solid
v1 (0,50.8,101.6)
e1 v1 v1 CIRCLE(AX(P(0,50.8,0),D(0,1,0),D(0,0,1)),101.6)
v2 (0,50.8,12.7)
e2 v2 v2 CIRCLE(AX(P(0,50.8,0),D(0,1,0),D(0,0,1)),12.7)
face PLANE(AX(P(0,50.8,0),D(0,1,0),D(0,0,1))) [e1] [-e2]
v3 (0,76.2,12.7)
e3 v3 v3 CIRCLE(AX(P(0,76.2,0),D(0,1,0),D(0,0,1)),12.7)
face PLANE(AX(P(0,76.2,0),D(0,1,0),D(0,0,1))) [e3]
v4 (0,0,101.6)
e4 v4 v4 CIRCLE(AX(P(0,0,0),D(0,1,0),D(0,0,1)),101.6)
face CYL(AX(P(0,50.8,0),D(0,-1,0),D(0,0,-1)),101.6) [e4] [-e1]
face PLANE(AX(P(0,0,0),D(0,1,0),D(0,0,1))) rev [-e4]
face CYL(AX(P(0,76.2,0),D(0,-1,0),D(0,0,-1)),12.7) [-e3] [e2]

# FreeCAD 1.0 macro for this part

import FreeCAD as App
import Part
import Sketcher

V = App.Vector
Q = App.Units.Quantity

doc = App.newDocument("Part")
body = doc.addObject("PartDesign::Body", "Body")

# Sketch on XZ plane
sketch1 = doc.addObject("Sketcher::SketchObject", "Sketch")
body.addObject(sketch1)
sketch1.AttachmentSupport = (doc.XZ_Plane, [""])
sketch1.MapMode = "FlatFace"
sketch1.addGeometry(Part.Circle(V(0, 0, 0), V(0, 0, 1), 102), False)
sketch1.addConstraint(Sketcher.Constraint("Coincident", 0, 3, -1, 1))
sketch1.addConstraint(Sketcher.Constraint("Diameter", 0, Q("8 in")))
pad1 = doc.addObject("PartDesign::Pad", "Pad")
body.addObject(pad1)
pad1.Profile = sketch1
pad1.Length = Q("2 in")
pad1.Reversed = True

# Sketch on XZ plane
sketch2 = doc.addObject("Sketcher::SketchObject", "Sketch001")
body.addObject(sketch2)
sketch2.AttachmentSupport = (doc.XZ_Plane, [""])
sketch2.MapMode = "FlatFace"
sketch2.AttachmentOffset = App.Placement(V(0, 0, -2 * 25.4), App.Rotation())
sketch2.addGeometry(Part.Circle(V(0, 0, 0), V(0, 0, 1), 13), False)
sketch2.addConstraint(Sketcher.Constraint("Coincident", 0, 3, -1, 1))
sketch2.addConstraint(Sketcher.Constraint("Diameter", 0, Q("1 in")))
pad2 = doc.addObject("PartDesign::Pad", "Pad001")
body.addObject(pad2)
pad2.Profile = sketch2
pad2.Length = Q("1 in")
pad2.Reversed = True

doc.recompute()
